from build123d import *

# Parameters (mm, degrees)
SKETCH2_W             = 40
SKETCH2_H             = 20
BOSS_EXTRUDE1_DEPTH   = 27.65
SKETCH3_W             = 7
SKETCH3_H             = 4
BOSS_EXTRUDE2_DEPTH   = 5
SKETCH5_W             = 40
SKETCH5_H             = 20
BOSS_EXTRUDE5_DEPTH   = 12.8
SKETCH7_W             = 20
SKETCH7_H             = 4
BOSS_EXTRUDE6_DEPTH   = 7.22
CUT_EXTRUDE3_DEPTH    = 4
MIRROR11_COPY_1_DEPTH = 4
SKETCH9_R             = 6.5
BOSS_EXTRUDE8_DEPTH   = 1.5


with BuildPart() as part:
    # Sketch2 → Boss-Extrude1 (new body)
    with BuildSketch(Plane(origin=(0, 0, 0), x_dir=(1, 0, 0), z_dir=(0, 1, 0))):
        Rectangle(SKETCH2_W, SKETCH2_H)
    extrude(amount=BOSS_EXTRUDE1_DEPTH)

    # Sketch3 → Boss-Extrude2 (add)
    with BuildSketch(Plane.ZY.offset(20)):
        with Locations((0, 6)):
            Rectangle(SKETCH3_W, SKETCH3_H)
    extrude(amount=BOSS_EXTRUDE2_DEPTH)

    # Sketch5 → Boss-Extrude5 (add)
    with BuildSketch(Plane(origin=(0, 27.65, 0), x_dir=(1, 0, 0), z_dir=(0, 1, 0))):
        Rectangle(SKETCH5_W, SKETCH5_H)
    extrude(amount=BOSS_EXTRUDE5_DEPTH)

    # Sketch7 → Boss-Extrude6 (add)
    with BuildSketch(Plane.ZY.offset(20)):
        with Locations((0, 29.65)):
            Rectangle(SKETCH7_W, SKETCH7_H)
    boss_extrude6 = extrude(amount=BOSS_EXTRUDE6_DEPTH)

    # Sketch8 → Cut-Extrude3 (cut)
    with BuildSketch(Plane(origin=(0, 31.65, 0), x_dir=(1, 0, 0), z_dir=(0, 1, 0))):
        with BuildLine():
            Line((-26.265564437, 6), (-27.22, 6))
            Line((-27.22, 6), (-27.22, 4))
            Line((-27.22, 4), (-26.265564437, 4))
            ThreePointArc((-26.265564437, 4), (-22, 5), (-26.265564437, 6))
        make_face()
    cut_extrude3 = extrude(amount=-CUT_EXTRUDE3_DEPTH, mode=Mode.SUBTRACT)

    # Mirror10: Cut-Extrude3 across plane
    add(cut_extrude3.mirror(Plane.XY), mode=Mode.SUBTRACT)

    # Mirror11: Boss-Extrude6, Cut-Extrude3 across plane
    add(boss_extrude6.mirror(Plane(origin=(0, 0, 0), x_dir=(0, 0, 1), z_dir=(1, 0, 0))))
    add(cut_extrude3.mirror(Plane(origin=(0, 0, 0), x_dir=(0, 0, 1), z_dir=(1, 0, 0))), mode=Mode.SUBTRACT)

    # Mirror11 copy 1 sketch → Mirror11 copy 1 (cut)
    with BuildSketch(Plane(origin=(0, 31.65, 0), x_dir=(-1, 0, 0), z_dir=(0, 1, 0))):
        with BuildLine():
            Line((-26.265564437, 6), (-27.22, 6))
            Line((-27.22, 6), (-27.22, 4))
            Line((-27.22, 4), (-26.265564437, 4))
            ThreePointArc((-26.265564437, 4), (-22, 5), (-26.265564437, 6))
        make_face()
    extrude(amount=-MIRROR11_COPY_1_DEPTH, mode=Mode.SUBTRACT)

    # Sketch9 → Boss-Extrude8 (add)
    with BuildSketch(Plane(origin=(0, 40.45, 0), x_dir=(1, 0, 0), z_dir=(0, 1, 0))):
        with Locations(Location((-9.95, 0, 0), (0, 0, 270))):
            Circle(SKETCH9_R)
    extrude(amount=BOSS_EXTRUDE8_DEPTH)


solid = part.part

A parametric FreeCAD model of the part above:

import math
import FreeCAD as App
import Part
import Sketcher
from FreeCAD import Vector

doc = App.newDocument("Part")
params = doc.addObject("Spreadsheet::Sheet", "Params")
for row, (alias, value) in enumerate([
    ("sketch1_width", "40 mm"),
    ("sketch1_height", "20 mm"),
    ("pad1_length", "27.65 mm"),
    ("sketch2_width", "4 mm"),
    ("sketch2_height", "7 mm"),
    ("pad2_length", "5 mm"),
    ("sketch3_width", "40 mm"),
    ("sketch3_height", "20 mm"),
    ("pad3_length", "12.8 mm"),
    ("sketch4_width", "4 mm"),
    ("sketch4_height", "20 mm"),
    ("pad4_length", "7.22 mm"),
    ("sketch5_height", "2 mm"),
    ("sketch5_radius", "2.25 mm"),
    ("pocket1_length", "4 mm"),
    ("sketch6_height", "2 mm"),
    ("sketch6_radius", "2.25 mm"),
    ("pocket2_length", "4 mm"),
    ("sketch7_diameter", "13 mm"),
    ("pad5_length", "1.5 mm"),
], start=1):
    params.set(f"A{row}", alias)
    params.set(f"B{row}", "=" + value)
    params.setAlias(f"B{row}", alias)

body = doc.addObject("PartDesign::Body", "Body")

# Sketch on XZ plane
sketch1 = body.newObject("Sketcher::SketchObject", "Sketch")
sketch1.AttachmentSupport = (doc.getObject("XZ_Plane"), [""])
sketch1.MapMode = "FlatFace"
sketch1.addGeometry([
    Part.LineSegment(Vector(-20, -10, 0), Vector(-20, 10, 0)),
    Part.LineSegment(Vector(-20, 10, 0), Vector(20, 10, 0)),
    Part.LineSegment(Vector(20, 10, 0), Vector(20, -10, 0)),
    Part.LineSegment(Vector(20, -10, 0), Vector(-20, -10, 0)),
], False)
sketch1.addConstraint([
    Sketcher.Constraint("Coincident", 0, 2, 1, 1),
    Sketcher.Constraint("Coincident", 1, 2, 2, 1),
    Sketcher.Constraint("Coincident", 2, 2, 3, 1),
    Sketcher.Constraint("Coincident", 3, 2, 0, 1),
    Sketcher.Constraint("Vertical", 0),
    Sketcher.Constraint("Horizontal", 1),
    Sketcher.Constraint("Vertical", 2),
    Sketcher.Constraint("Horizontal", 3),
    Sketcher.Constraint("Symmetric", 0, 2, 2, 2, -1, 1),
    Sketcher.Constraint("DistanceX", 1, 1, 1, 2, 40.0),
    Sketcher.Constraint("DistanceY", 0, 1, 0, 2, 20.0),
])
sketch1.setExpression("Constraints[9]", "Params.sketch1_width")
sketch1.setExpression("Constraints[10]", "Params.sketch1_height")
pad1 = body.newObject("PartDesign::Pad", "Pad")
pad1.Profile = sketch1
pad1.setExpression("Length", "Params.pad1_length")
pad1.Reversed = True

# Sketch on YZ plane
sketch2 = body.newObject("Sketcher::SketchObject", "Sketch001")
sketch2.AttachmentSupport = (doc.getObject("YZ_Plane"), [""])
sketch2.MapMode = "FlatFace"
sketch2.AttachmentOffset = App.Placement(Vector(0, 0, -20), App.Rotation())
sketch2.addGeometry([
    Part.LineSegment(Vector(8, -3.5, 0), Vector(4, -3.5, 0)),
    Part.LineSegment(Vector(4, -3.5, 0), Vector(4, 3.5, 0)),
    Part.LineSegment(Vector(4, 3.5, 0), Vector(8, 3.5, 0)),
    Part.LineSegment(Vector(8, 3.5, 0), Vector(8, -3.5, 0)),
], False)
sketch2.addConstraint([
    Sketcher.Constraint("Coincident", 0, 2, 1, 1),
    Sketcher.Constraint("Coincident", 1, 2, 2, 1),
    Sketcher.Constraint("Coincident", 2, 2, 3, 1),
    Sketcher.Constraint("Coincident", 3, 2, 0, 1),
    Sketcher.Constraint("Horizontal", 0),
    Sketcher.Constraint("Vertical", 1),
    Sketcher.Constraint("Horizontal", 2),
    Sketcher.Constraint("Vertical", 3),
    Sketcher.Constraint("DistanceX", 0, 2, 0, 1, 4.0),
    Sketcher.Constraint("DistanceY", 1, 1, 1, 2, 7.0),
    Sketcher.Constraint("DistanceX", -1, 1, 0, 2, 4.0),
    Sketcher.Constraint("DistanceY", 0, 2, -1, 1, 3.5),
])
sketch2.setExpression("Constraints[8]", "Params.sketch2_width")
sketch2.setExpression("Constraints[9]", "Params.sketch2_height")
pad2 = body.newObject("PartDesign::Pad", "Pad001")
pad2.Profile = sketch2
pad2.setExpression("Length", "Params.pad2_length")
pad2.Reversed = True

# Sketch on XZ plane
sketch3 = body.newObject("Sketcher::SketchObject", "Sketch002")
sketch3.AttachmentSupport = (doc.getObject("XZ_Plane"), [""])
sketch3.MapMode = "FlatFace"
sketch3.AttachmentOffset = App.Placement(Vector(0, 0, -27.65), App.Rotation())
sketch3.addGeometry([
    Part.LineSegment(Vector(-20, -10, 0), Vector(-20, 10, 0)),
    Part.LineSegment(Vector(-20, 10, 0), Vector(20, 10, 0)),
    Part.LineSegment(Vector(20, 10, 0), Vector(20, -10, 0)),
    Part.LineSegment(Vector(20, -10, 0), Vector(-20, -10, 0)),
], False)
sketch3.addConstraint([
    Sketcher.Constraint("Coincident", 0, 2, 1, 1),
    Sketcher.Constraint("Coincident", 1, 2, 2, 1),
    Sketcher.Constraint("Coincident", 2, 2, 3, 1),
    Sketcher.Constraint("Coincident", 3, 2, 0, 1),
    Sketcher.Constraint("Vertical", 0),
    Sketcher.Constraint("Horizontal", 1),
    Sketcher.Constraint("Vertical", 2),
    Sketcher.Constraint("Horizontal", 3),
    Sketcher.Constraint("Symmetric", 0, 2, 2, 2, -1, 1),
    Sketcher.Constraint("DistanceX", 1, 1, 1, 2, 40.0),
    Sketcher.Constraint("DistanceY", 0, 1, 0, 2, 20.0),
])
sketch3.setExpression("Constraints[9]", "Params.sketch3_width")
sketch3.setExpression("Constraints[10]", "Params.sketch3_height")
pad3 = body.newObject("PartDesign::Pad", "Pad002")
pad3.Profile = sketch3
pad3.setExpression("Length", "Params.pad3_length")
pad3.Reversed = True

# Sketch on YZ plane
sketch4 = body.newObject("Sketcher::SketchObject", "Sketch003")
sketch4.AttachmentSupport = (doc.getObject("YZ_Plane"), [""])
sketch4.MapMode = "FlatFace"
sketch4.AttachmentOffset = App.Placement(Vector(0, 0, -20), App.Rotation())
sketch4.addGeometry([
    Part.LineSegment(Vector(31.6, -10, 0), Vector(27.6, -10, 0)),
    Part.LineSegment(Vector(27.6, -10, 0), Vector(27.6, 10, 0)),
    Part.LineSegment(Vector(27.6, 10, 0), Vector(31.6, 10, 0)),
    Part.LineSegment(Vector(31.6, 10, 0), Vector(31.6, -10, 0)),
], False)
sketch4.addConstraint([
    Sketcher.Constraint("Coincident", 0, 2, 1, 1),
    Sketcher.Constraint("Coincident", 1, 2, 2, 1),
    Sketcher.Constraint("Coincident", 2, 2, 3, 1),
    Sketcher.Constraint("Coincident", 3, 2, 0, 1),
    Sketcher.Constraint("Horizontal", 0),
    Sketcher.Constraint("Vertical", 1),
    Sketcher.Constraint("Horizontal", 2),
    Sketcher.Constraint("Vertical", 3),
    Sketcher.Constraint("DistanceX", 0, 2, 0, 1, 4.0),
    Sketcher.Constraint("DistanceY", 1, 1, 1, 2, 20.0),
    Sketcher.Constraint("DistanceY", 0, 2, -1, 1, 10.0),
    Sketcher.Constraint("DistanceX", -1, 1, 0, 2, 27.65),
])
sketch4.setExpression("Constraints[8]", "Params.sketch4_width")
sketch4.setExpression("Constraints[9]", "Params.sketch4_height")
pad4 = body.newObject("PartDesign::Pad", "Pad003")
pad4.Profile = sketch4
pad4.setExpression("Length", "Params.pad4_length")
pad4.Reversed = True

# Sketch on XZ plane
sketch5 = body.newObject("Sketcher::SketchObject", "Sketch004")
sketch5.AttachmentSupport = (doc.getObject("XZ_Plane"), [""])
sketch5.MapMode = "FlatFace"
sketch5.AttachmentOffset = App.Placement(Vector(0, 0, -31.65), App.Rotation())
sketch5.addGeometry([
    Part.LineSegment(Vector(-26.3, -6, 0), Vector(-27.2, -6, 0)),
    Part.LineSegment(Vector(-27.2, -6, 0), Vector(-27.2, -4, 0)),
    Part.LineSegment(Vector(-27.2, -4, 0), Vector(-26.3, -4, 0)),
    Part.ArcOfCircle(Part.Circle(Vector(-24.2, -5, 0), Vector(0, 0, 1), 2.2), math.radians(-154), math.radians(154)),
], False)
sketch5.addConstraint([
    Sketcher.Constraint("Coincident", 0, 2, 1, 1),
    Sketcher.Constraint("Coincident", 1, 2, 2, 1),
    Sketcher.Constraint("Coincident", 2, 2, 3, 2),
    Sketcher.Constraint("Coincident", 3, 1, 0, 1),
    Sketcher.Constraint("Horizontal", 0),
    Sketcher.Constraint("Vertical", 1),
    Sketcher.Constraint("Horizontal", 2),
    Sketcher.Constraint("Vertical", 2, 2, 3, 1),
    Sketcher.Constraint("DistanceY", 1, 1, 1, 2, 2.0),
    Sketcher.Constraint("Radius", 3, 2.25),
    Sketcher.Constraint("DistanceY", 3, 3, -1, 1, 5.0),
    Sketcher.Constraint("DistanceX", 3, 3, -1, 1, 24.25),
    Sketcher.Constraint("DistanceX", 0, 2, -1, 1, 27.22),
])
sketch5.setExpression("Constraints[8]", "Params.sketch5_height")
sketch5.setExpression("Constraints[9]", "Params.sketch5_radius")
pocket1 = body.newObject("PartDesign::Pocket", "Pocket")
pocket1.Profile = sketch5
pocket1.setExpression("Length", "Params.pocket1_length")
pocket1.Reversed = True
doc.recompute()

mirrored = body.newObject("PartDesign::Mirrored", "Mirrored")
mirrored.Originals = [pocket1]
mirrored.MirrorPlane = (doc.getObject("XY_Plane"), [""])
body.Tip = mirrored
doc.recompute()

mirrored2 = body.newObject("PartDesign::Mirrored", "Mirrored001")
mirrored2.Originals = [pad4, pocket1]
mirrored2.MirrorPlane = (doc.getObject("YZ_Plane"), [""])
body.Tip = mirrored2

# Sketch on XZ plane
sketch6 = body.newObject("Sketcher::SketchObject", "Sketch005")
sketch6.AttachmentSupport = (doc.getObject("XZ_Plane"), [""])
sketch6.MapMode = "FlatFace"
sketch6.AttachmentOffset = App.Placement(Vector(0, 0, -31.65), App.Rotation())
sketch6.addGeometry([
    Part.LineSegment(Vector(26.3, 6, 0), Vector(27.2, 6, 0)),
    Part.LineSegment(Vector(27.2, 6, 0), Vector(27.2, 4, 0)),
    Part.LineSegment(Vector(27.2, 4, 0), Vector(26.3, 4, 0)),
    Part.ArcOfCircle(Part.Circle(Vector(24.2, 5, 0), Vector(0, 0, 1), 2.2), math.radians(26), math.radians(334)),
], False)
sketch6.addConstraint([
    Sketcher.Constraint("Coincident", 0, 2, 1, 1),
    Sketcher.Constraint("Coincident", 1, 2, 2, 1),
    Sketcher.Constraint("Coincident", 2, 2, 3, 2),
    Sketcher.Constraint("Coincident", 3, 1, 0, 1),
    Sketcher.Constraint("Horizontal", 0),
    Sketcher.Constraint("Vertical", 1),
    Sketcher.Constraint("Horizontal", 2),
    Sketcher.Constraint("Vertical", 2, 2, 3, 1),
    Sketcher.Constraint("DistanceY", 1, 2, 1, 1, 2.0),
    Sketcher.Constraint("Radius", 3, 2.25),
    Sketcher.Constraint("DistanceY", -1, 1, 3, 3, 5.0),
    Sketcher.Constraint("DistanceX", -1, 1, 3, 3, 24.25),
    Sketcher.Constraint("DistanceX", -1, 1, 0, 2, 27.22),
])
sketch6.setExpression("Constraints[8]", "Params.sketch6_height")
sketch6.setExpression("Constraints[9]", "Params.sketch6_radius")
pocket2 = body.newObject("PartDesign::Pocket", "Pocket001")
pocket2.Profile = sketch6
pocket2.setExpression("Length", "Params.pocket2_length")
pocket2.Reversed = True

# Sketch on XZ plane
sketch7 = body.newObject("Sketcher::SketchObject", "Sketch006")
sketch7.AttachmentSupport = (doc.getObject("XZ_Plane"), [""])
sketch7.MapMode = "FlatFace"
sketch7.AttachmentOffset = App.Placement(Vector(0, 0, -40.45), App.Rotation())
sketch7.addGeometry(Part.Circle(Vector(-10, 0, 0), Vector(0, 0, 1), 6), False)
sketch7.addConstraint([
    Sketcher.Constraint("PointOnObject", 0, 3, -1),
    Sketcher.Constraint("Diameter", 0, 13.0),
    Sketcher.Constraint("DistanceX", 0, 3, -1, 1, 9.95),
])
sketch7.setExpression("Constraints[1]", "Params.sketch7_diameter")
pad5 = body.newObject("PartDesign::Pad", "Pad004")
pad5.Profile = sketch7
pad5.setExpression("Length", "Params.pad5_length")
pad5.Reversed = True

doc.recompute()
